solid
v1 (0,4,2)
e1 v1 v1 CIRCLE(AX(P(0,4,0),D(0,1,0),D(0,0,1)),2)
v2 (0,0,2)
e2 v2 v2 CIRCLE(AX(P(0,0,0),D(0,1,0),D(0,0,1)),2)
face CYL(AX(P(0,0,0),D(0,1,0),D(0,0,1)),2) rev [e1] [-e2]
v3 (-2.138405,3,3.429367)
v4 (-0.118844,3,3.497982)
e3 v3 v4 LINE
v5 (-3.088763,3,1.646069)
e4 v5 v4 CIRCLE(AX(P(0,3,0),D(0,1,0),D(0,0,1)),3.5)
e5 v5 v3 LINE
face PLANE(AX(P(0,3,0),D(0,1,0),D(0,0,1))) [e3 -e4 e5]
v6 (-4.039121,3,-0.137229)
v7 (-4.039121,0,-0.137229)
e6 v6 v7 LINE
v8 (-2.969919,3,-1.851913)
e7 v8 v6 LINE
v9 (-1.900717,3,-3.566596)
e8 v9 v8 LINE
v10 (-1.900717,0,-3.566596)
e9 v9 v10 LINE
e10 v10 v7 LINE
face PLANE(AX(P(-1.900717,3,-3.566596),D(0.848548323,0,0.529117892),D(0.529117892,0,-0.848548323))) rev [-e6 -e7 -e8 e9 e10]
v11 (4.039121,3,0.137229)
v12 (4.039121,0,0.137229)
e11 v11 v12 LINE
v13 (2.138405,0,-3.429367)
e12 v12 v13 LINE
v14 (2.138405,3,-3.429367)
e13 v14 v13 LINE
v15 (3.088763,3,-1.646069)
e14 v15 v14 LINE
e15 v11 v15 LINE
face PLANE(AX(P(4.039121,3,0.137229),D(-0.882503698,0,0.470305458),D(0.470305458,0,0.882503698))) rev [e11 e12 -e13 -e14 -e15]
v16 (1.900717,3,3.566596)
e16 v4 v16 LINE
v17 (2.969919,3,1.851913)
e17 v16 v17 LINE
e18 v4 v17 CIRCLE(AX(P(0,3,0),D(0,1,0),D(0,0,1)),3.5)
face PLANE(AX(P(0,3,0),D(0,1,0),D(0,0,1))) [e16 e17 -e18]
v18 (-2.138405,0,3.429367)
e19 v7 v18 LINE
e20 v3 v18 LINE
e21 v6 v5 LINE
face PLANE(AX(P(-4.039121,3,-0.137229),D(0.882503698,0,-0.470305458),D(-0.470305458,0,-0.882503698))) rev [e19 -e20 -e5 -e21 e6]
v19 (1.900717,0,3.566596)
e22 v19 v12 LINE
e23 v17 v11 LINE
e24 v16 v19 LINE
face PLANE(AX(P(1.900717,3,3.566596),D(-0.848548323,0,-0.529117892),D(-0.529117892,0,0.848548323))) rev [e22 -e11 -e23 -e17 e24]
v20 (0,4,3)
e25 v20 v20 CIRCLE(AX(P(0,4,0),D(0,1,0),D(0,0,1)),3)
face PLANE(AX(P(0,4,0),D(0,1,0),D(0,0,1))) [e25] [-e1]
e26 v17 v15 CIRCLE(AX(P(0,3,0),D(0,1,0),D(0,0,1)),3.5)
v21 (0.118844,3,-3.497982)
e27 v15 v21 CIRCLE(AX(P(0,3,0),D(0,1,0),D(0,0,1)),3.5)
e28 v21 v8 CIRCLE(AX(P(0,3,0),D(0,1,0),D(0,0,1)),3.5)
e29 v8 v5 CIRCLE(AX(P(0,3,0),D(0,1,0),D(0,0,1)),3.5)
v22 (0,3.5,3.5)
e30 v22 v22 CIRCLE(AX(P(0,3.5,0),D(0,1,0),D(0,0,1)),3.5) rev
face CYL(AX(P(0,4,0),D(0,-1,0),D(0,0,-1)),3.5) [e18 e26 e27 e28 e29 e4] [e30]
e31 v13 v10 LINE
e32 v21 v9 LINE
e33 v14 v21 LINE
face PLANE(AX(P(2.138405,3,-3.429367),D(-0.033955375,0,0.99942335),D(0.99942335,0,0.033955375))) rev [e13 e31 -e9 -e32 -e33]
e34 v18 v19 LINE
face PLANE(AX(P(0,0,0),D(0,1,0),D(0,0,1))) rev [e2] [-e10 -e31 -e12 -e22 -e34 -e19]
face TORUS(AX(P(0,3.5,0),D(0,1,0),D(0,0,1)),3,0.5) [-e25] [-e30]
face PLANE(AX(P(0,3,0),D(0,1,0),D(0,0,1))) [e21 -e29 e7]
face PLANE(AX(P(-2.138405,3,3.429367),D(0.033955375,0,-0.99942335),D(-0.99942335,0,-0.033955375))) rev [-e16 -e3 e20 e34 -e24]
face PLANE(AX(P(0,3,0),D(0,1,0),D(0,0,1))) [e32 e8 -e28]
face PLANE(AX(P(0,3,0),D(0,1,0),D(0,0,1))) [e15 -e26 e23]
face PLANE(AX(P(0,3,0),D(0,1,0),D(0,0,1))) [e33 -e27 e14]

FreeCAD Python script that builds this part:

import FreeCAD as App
import Part
import Sketcher

V = App.Vector


def edges_at(feature, points):
    """Names of the edges that pass closest to the given points."""
    edges = feature.Shape.Edges
    near = lambda p: min(range(len(edges)), key=lambda i: edges[i].distToShape(Part.Vertex(*p))[0])
    return sorted({f"Edge{near(p) + 1}" for p in points})


def add_polygon(sketch, points):
    """Adds a closed chain of lines whose ends are joined by coincident constraints."""
    first, n = sketch.GeometryCount, len(points)
    for a, b in zip(points, points[1:] + points[:1]):
        sketch.addGeometry(Part.LineSegment(App.Vector(*a, 0), App.Vector(*b, 0)), False)
    for i in range(n):
        sketch.addConstraint(Sketcher.Constraint("Coincident", first + i, 2, first + (i + 1) % n, 1))

doc = App.newDocument("Part")
body = doc.addObject("PartDesign::Body", "Body")

# Sketch on XZ plane
sketch1 = body.newObject("Sketcher::SketchObject", "Sketch")
sketch1.AttachmentSupport = (doc.getObject("XZ_Plane"), [""])
sketch1.MapMode = "FlatFace"
add_polygon(sketch1, [(2.1, -3.4), (-1.9, -3.6), (-4, -0.1), (-2.1, 3.4), (1.9, 3.6), (4, 0.1)])  # lines 0-5
sketch1.addConstraint(Sketcher.Constraint("Symmetric", 0, 2, 3, 2, -1, 1))
sketch1.addConstraint(Sketcher.Constraint("Symmetric", 1, 2, 4, 2, -1, 1))
sketch1.addConstraint(Sketcher.Constraint("Symmetric", 2, 2, 5, 2, -1, 1))
sketch1.addConstraint(Sketcher.Constraint("Equal", 0, 1))
sketch1.addConstraint(Sketcher.Constraint("Equal", 1, 2))
sketch1.addConstraint(Sketcher.Constraint("Distance", 0, 4.041452))
sketch1.addConstraint(Sketcher.Constraint("DistanceX", 1, 2, -1, 1, 4.039121))
sketch1.addConstraint(Sketcher.Constraint("DistanceY", 1, 2, -1, 1, 0.137229))
sketch1.addConstraint(Sketcher.Constraint("DistanceX", 2, 2, 3, 2, 4.039121))
pad1 = body.newObject("PartDesign::Pad", "Pad")
pad1.Profile = sketch1
pad1.Length = 3
pad1.Reversed = True

# Sketch on XZ plane
sketch2 = body.newObject("Sketcher::SketchObject", "Sketch001")
sketch2.AttachmentSupport = (doc.getObject("XZ_Plane"), [""])
sketch2.MapMode = "FlatFace"
sketch2.AttachmentOffset = App.Placement(V(0, 0, -3), App.Rotation())
sketch2.addGeometry(Part.Circle(V(0, 0, 0), V(0, 0, 1), 3.5), False)
sketch2.addConstraint(Sketcher.Constraint("Coincident", 0, 3, -1, 1))
sketch2.addConstraint(Sketcher.Constraint("Diameter", 0, 7.0))
pad2 = body.newObject("PartDesign::Pad", "Pad001")
pad2.Profile = sketch2
pad2.Length = 1
pad2.Reversed = True

# Sketch on XZ plane
sketch3 = body.newObject("Sketcher::SketchObject", "Sketch002")
sketch3.AttachmentSupport = (doc.getObject("XZ_Plane"), [""])
sketch3.MapMode = "FlatFace"
sketch3.AttachmentOffset = App.Placement(V(0, 0, -4), App.Rotation())
sketch3.addGeometry(Part.Circle(V(0, 0, 0), V(0, 0, 1), 2), False)
sketch3.addConstraint(Sketcher.Constraint("Coincident", 0, 3, -1, 1))
sketch3.addConstraint(Sketcher.Constraint("Diameter", 0, 4.0))
pocket1 = body.newObject("PartDesign::Pocket", "Pocket")
pocket1.Profile = sketch3
pocket1.Type = "ThroughAll"
pocket1.Reversed = True
doc.recompute()

fillet = body.newObject("PartDesign::Fillet", "Fillet")
fillet.Base = (pocket1, edges_at(pocket1, [(-0.119, 4, 3.498)]))
fillet.Radius = 0.5

doc.recompute()
